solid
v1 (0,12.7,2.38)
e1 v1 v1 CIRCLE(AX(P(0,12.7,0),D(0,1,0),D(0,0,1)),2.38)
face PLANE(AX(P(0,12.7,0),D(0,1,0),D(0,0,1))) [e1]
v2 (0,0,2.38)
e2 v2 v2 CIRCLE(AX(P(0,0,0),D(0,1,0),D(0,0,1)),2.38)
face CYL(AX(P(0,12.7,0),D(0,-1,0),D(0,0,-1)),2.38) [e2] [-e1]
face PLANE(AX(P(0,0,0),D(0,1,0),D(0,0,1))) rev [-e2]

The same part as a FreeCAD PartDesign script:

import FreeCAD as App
import Part
import Sketcher
from FreeCAD import Vector
Q = App.Units.Quantity

doc = App.newDocument("Part")
body = doc.addObject("PartDesign::Body", "Body")

# Sketch on XZ plane
sketch1 = body.newObject("Sketcher::SketchObject", "Sketch")
sketch1.AttachmentSupport = (doc.getObject("XZ_Plane"), [""])
sketch1.MapMode = "FlatFace"
sketch1.addGeometry(Part.Circle(Vector(0, 0, 0), Vector(0, 0, 1), 2.4), False)
sketch1.addConstraint(Sketcher.Constraint("Coincident", 0, 3, -1, 1))
sketch1.addConstraint(Sketcher.Constraint("Diameter", 0, Q("4.76 mm")))
pad1 = body.newObject("PartDesign::Pad", "Pad")
pad1.Profile = sketch1
pad1.Length = Q("0.5 in")
pad1.Reversed = True

doc.recompute()
